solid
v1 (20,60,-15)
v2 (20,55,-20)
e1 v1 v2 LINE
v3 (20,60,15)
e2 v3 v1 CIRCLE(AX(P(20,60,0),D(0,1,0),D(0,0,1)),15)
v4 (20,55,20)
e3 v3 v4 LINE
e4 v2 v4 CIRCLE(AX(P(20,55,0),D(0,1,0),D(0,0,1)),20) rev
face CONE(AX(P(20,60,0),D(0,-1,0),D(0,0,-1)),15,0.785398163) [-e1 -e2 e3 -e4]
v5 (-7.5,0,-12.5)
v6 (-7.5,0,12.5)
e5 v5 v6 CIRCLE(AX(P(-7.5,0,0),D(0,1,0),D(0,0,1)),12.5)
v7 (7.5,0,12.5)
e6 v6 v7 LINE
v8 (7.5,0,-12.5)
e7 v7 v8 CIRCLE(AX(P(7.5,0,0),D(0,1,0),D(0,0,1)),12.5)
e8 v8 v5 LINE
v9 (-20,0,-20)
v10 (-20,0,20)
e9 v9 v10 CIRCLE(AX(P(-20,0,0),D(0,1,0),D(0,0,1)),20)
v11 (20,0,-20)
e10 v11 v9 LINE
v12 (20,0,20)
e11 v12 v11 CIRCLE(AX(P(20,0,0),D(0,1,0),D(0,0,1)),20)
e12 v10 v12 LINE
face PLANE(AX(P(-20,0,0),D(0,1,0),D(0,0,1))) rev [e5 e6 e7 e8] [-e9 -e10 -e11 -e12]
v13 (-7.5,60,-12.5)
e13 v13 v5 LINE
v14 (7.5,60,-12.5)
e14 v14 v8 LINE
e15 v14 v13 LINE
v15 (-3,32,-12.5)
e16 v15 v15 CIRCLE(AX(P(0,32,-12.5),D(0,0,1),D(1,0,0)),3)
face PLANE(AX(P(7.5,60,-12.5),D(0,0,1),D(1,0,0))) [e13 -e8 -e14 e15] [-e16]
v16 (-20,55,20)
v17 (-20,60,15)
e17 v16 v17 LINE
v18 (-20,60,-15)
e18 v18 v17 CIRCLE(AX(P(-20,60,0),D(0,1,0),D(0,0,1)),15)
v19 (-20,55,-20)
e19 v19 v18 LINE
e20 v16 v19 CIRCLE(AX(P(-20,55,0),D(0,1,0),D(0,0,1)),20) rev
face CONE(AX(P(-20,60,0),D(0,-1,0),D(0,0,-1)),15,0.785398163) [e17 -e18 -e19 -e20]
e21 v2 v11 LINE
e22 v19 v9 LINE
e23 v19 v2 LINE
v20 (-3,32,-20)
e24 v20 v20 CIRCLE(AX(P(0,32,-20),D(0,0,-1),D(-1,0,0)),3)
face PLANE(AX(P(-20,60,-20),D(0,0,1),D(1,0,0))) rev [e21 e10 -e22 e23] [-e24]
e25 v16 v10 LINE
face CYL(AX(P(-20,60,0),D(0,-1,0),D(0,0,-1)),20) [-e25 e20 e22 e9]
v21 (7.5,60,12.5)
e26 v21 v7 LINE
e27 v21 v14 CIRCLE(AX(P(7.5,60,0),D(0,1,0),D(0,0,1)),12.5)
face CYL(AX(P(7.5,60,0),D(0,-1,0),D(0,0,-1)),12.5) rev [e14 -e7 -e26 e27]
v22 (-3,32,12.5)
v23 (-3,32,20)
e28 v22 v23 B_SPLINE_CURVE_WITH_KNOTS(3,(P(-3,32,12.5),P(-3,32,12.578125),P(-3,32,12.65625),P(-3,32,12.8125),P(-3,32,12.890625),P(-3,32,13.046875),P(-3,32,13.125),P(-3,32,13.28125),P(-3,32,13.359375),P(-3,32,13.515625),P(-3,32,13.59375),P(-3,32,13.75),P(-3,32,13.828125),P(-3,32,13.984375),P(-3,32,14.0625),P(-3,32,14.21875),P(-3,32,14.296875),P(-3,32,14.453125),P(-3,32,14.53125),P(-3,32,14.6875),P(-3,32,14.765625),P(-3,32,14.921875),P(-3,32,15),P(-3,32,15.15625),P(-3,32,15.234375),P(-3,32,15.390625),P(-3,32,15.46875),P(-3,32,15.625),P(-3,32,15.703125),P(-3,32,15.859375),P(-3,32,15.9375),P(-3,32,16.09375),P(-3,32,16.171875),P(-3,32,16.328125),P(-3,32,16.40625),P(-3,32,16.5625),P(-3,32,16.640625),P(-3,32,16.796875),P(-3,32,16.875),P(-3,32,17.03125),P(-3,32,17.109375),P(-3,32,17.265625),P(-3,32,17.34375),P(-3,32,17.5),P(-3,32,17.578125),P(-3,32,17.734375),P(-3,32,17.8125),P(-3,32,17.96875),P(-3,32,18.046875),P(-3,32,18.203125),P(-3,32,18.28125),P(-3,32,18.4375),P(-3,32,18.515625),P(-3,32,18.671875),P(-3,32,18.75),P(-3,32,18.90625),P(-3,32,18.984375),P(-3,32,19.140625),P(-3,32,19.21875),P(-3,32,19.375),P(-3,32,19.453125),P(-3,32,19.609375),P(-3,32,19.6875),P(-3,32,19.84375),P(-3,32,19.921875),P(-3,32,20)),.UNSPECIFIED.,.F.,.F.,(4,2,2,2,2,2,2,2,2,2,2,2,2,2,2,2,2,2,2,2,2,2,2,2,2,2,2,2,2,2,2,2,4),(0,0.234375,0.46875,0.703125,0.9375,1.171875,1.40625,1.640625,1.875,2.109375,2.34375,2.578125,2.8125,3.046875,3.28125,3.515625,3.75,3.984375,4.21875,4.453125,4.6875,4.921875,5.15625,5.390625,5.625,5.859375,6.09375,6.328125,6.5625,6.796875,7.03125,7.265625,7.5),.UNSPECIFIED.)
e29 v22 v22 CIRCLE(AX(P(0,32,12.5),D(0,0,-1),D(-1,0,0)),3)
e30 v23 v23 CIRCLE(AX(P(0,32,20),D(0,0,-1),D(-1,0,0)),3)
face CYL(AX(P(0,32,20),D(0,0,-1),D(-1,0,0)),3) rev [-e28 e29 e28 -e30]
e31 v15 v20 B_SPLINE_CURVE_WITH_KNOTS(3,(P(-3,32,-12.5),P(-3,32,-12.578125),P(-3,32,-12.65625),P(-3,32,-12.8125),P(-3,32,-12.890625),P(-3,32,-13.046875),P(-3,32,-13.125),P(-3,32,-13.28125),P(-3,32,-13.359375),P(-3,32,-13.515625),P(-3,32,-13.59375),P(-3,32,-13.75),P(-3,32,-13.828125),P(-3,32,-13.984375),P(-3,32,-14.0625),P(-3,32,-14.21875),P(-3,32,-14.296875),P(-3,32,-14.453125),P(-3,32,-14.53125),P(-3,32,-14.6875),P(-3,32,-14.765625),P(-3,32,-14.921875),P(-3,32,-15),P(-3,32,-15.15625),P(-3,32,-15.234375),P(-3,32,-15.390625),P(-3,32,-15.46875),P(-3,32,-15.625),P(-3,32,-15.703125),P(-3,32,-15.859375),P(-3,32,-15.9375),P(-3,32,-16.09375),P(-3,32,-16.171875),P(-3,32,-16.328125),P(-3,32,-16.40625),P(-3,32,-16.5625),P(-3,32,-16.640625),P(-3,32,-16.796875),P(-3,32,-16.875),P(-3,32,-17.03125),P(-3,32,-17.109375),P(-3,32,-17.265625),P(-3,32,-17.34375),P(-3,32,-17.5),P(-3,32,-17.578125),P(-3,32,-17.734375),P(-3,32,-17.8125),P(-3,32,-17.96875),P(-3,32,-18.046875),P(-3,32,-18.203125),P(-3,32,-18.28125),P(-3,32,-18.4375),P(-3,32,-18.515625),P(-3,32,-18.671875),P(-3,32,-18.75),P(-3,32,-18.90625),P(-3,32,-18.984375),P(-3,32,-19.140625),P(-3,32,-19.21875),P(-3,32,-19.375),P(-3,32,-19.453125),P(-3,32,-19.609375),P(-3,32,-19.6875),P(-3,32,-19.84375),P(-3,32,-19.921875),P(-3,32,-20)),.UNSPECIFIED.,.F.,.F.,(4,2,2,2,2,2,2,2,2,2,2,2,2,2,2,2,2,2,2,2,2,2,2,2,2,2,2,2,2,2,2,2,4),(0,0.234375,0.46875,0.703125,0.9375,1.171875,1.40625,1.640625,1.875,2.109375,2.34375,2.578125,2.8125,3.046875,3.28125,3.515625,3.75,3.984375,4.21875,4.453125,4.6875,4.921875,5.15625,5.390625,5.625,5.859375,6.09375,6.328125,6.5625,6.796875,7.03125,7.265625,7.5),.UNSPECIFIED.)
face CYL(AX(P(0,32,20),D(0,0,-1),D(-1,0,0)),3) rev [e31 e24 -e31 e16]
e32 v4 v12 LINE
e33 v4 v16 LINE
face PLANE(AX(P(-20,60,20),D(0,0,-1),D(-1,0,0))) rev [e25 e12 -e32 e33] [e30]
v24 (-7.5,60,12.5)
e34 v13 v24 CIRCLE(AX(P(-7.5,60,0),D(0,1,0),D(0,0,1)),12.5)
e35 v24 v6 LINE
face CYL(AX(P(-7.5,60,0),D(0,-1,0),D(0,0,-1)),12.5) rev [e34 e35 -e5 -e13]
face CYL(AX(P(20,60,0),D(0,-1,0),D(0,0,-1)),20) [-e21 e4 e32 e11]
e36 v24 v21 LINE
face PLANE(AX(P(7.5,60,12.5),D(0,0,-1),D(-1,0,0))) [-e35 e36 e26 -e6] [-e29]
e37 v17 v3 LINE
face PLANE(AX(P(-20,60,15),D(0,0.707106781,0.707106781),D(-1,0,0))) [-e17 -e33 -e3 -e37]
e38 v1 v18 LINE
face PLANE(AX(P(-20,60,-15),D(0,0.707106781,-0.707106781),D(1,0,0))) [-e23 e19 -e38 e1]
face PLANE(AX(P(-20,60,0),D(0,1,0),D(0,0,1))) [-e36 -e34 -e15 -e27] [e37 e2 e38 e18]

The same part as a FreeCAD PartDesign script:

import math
import FreeCAD as App
import Part
import Sketcher


def edges_at(feature, points):
    """Names of the edges that pass closest to the given points."""
    edges = feature.Shape.Edges
    near = lambda p: min(range(len(edges)), key=lambda i: edges[i].distToShape(Part.Vertex(*p))[0])
    return sorted({f"Edge{near(p) + 1}" for p in points})

doc = App.newDocument("Part")
body = doc.addObject("PartDesign::Body", "Body")

# Sketch on XZ plane
sketch1 = body.newObject("Sketcher::SketchObject", "Sketch")
sketch1.AttachmentSupport = (doc.getObject("XZ_Plane"), [""])
sketch1.MapMode = "FlatFace"
sketch1.addGeometry(Part.LineSegment(App.Vector(20, -20, 0), App.Vector(-20, -20, 0)), False)
sketch1.addGeometry(Part.ArcOfCircle(Part.Circle(App.Vector(-20, 0, 0), App.Vector(0, 0, 1), 20), math.radians(90), math.radians(270)), False)
sketch1.addGeometry(Part.LineSegment(App.Vector(-20, 20, 0), App.Vector(20, 20, 0)), False)
sketch1.addGeometry(Part.ArcOfCircle(Part.Circle(App.Vector(20, 0, 0), App.Vector(0, 0, 1), 20), math.radians(-90), math.radians(90)), False)
sketch1.addGeometry(Part.ArcOfCircle(Part.Circle(App.Vector(8, 0, 0), App.Vector(0, 0, 1), 12), math.radians(-90), math.radians(90)), False)
sketch1.addGeometry(Part.LineSegment(App.Vector(8, 12, 0), App.Vector(-8, 12, 0)), False)
sketch1.addGeometry(Part.ArcOfCircle(Part.Circle(App.Vector(-8, 0, 0), App.Vector(0, 0, 1), 12), math.radians(90), math.radians(270)), False)
sketch1.addGeometry(Part.LineSegment(App.Vector(-8, -12, 0), App.Vector(8, -12, 0)), False)
sketch1.addConstraint(Sketcher.Constraint("Tangent", 0, 2, 1, 2))
sketch1.addConstraint(Sketcher.Constraint("Tangent", 1, 1, 2, 1))
sketch1.addConstraint(Sketcher.Constraint("Tangent", 2, 2, 3, 2))
sketch1.addConstraint(Sketcher.Constraint("Tangent", 3, 1, 0, 1))
sketch1.addConstraint(Sketcher.Constraint("Tangent", 4, 2, 5, 1))
sketch1.addConstraint(Sketcher.Constraint("Tangent", 5, 2, 6, 1))
sketch1.addConstraint(Sketcher.Constraint("Tangent", 6, 2, 7, 1))
sketch1.addConstraint(Sketcher.Constraint("Tangent", 7, 2, 4, 1))
sketch1.addConstraint(Sketcher.Constraint("Horizontal", 0))
sketch1.addConstraint(Sketcher.Constraint("Horizontal", 2))
sketch1.addConstraint(Sketcher.Constraint("Horizontal", 5))
sketch1.addConstraint(Sketcher.Constraint("Horizontal", 7))
sketch1.addConstraint(Sketcher.Constraint("Symmetric", 1, 3, 3, 3, -1, 1))
sketch1.addConstraint(Sketcher.Constraint("Symmetric", 4, 3, 6, 3, -1, 1))
sketch1.addConstraint(Sketcher.Constraint("Radius", 1, 20.0))
sketch1.addConstraint(Sketcher.Constraint("Radius", 4, 12.5))
sketch1.addConstraint(Sketcher.Constraint("DistanceX", 0, 2, 0, 1, 40.0))
sketch1.addConstraint(Sketcher.Constraint("DistanceX", 5, 2, 5, 1, 15.0))
pad1 = body.newObject("PartDesign::Pad", "Pad")
pad1.Profile = sketch1
pad1.Length = 60
pad1.Reversed = True
doc.recompute()

chamfer = body.newObject("PartDesign::Chamfer", "Chamfer")
chamfer.Base = (pad1, edges_at(pad1, [
    (40, 60, 0),
    (0, 60, -20),
    (-40, 60, 0),
    (0, 60, 20),
]))
chamfer.Size = 5

# Sketch on XY plane
sketch2 = body.newObject("Sketcher::SketchObject", "Sketch001")
sketch2.AttachmentSupport = (doc.getObject("XY_Plane"), [""])
sketch2.MapMode = "FlatFace"
sketch2.AttachmentOffset = App.Placement(App.Vector(0, 0, -20), App.Rotation())
sketch2.addGeometry(Part.Circle(App.Vector(0, 32, 0), App.Vector(0, 0, 1), 3), False)
sketch2.addConstraint(Sketcher.Constraint("PointOnObject", 0, 3, -2))
sketch2.addConstraint(Sketcher.Constraint("Diameter", 0, 6.0))
sketch2.addConstraint(Sketcher.Constraint("DistanceY", -1, 1, 0, 3, 32.0))
pocket1 = body.newObject("PartDesign::Pocket", "Pocket")
pocket1.Profile = sketch2
pocket1.Type = "ThroughAll"
pocket1.Reversed = True

doc.recompute()
